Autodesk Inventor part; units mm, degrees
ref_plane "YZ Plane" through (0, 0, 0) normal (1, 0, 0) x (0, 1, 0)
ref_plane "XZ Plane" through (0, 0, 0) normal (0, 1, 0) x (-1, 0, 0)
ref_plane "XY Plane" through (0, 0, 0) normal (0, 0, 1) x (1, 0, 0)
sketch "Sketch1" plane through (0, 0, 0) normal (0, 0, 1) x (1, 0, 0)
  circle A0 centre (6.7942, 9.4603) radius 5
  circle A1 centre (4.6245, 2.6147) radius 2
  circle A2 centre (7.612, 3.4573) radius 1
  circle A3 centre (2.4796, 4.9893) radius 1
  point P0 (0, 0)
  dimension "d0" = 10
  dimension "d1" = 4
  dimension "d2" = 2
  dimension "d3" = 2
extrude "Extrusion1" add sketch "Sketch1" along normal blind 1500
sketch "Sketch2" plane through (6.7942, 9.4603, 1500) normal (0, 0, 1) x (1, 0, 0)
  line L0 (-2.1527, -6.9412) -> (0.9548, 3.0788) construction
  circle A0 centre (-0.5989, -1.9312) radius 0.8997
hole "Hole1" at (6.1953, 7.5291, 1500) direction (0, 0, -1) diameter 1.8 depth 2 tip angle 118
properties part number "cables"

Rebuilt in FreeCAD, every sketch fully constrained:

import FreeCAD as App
import Part
import Sketcher

doc = App.newDocument("Part")
body = doc.addObject("PartDesign::Body", "Body")
body.AllowCompound = True

sketch1 = body.newObject("Sketcher::SketchObject", "Sketch")
sketch1.AttachmentSupport = (doc.getObject("XY_Plane"), [""])
sketch1.MapMode = "FlatFace"
sketch1.addGeometry([
    Part.Circle(App.Vector(6.7942, 9.4603, 0), App.Vector(0, 0, 1), 5),
    Part.Circle(App.Vector(4.6245, 2.6147, 0), App.Vector(0, 0, 1), 2),
    Part.Circle(App.Vector(7.612, 3.4573, 0), App.Vector(0, 0, 1), 1),
    Part.Circle(App.Vector(2.4796, 4.9893, 0), App.Vector(0, 0, 1), 1),
], False)
sketch1.addConstraint([
    Sketcher.Constraint("Equal", 2, 3),
    Sketcher.Constraint("Diameter", 0, 10.0),
    Sketcher.Constraint("Diameter", 1, 4.0),
    Sketcher.Constraint("Diameter", 2, 2.0),
    Sketcher.Constraint("DistanceX", -1, 1, 2, 3, 7.612),
    Sketcher.Constraint("DistanceY", 2, 3, 0, 3, 6.003),
    Sketcher.Constraint("DistanceX", 3, 3, 1, 3, 2.145),
    Sketcher.Constraint("DistanceY", 2, 3, 3, 3, 1.532),
    Sketcher.Constraint("DistanceX", -1, 1, 0, 3, 6.7942),
    Sketcher.Constraint("DistanceY", -1, 1, 0, 3, 9.4603),
    Sketcher.Constraint("DistanceX", -1, 1, 1, 3, 4.6245),
    Sketcher.Constraint("DistanceY", -1, 1, 1, 3, 2.6147),
])
pad1 = body.newObject("PartDesign::Pad", "Pad")
pad1.Profile = sketch1
pad1.Length = 1500

sketch2 = body.newObject("Sketcher::SketchObject", "Sketch001")
sketch2.AttachmentSupport = (doc.getObject("XY_Plane"), [""])
sketch2.MapMode = "FlatFace"
sketch2.AttachmentOffset = App.Placement(App.Vector(0, 0, 1500), App.Rotation())
sketch2.addGeometry(Part.Circle(App.Vector(6.1953, 7.5291, 0), App.Vector(0, 0, 1), 0.9), False)
sketch2.addConstraint([
    Sketcher.Constraint("Diameter", 0, 1.8),
    Sketcher.Constraint("DistanceY", -1, 1, 0, 3, 7.529),
    Sketcher.Constraint("DistanceX", -1, 1, 0, 3, 6.1953),
])
doc.recompute()
hole = body.newObject("PartDesign::Hole", "Hole")
hole.Profile = sketch2
hole.ThreadType = "None"
hole.Diameter = 1.8
hole.DepthType = "Dimension"
hole.Depth = 2
hole.DrillPoint = "Angled"
hole.DrillPointAngle = 118

doc.recompute()
